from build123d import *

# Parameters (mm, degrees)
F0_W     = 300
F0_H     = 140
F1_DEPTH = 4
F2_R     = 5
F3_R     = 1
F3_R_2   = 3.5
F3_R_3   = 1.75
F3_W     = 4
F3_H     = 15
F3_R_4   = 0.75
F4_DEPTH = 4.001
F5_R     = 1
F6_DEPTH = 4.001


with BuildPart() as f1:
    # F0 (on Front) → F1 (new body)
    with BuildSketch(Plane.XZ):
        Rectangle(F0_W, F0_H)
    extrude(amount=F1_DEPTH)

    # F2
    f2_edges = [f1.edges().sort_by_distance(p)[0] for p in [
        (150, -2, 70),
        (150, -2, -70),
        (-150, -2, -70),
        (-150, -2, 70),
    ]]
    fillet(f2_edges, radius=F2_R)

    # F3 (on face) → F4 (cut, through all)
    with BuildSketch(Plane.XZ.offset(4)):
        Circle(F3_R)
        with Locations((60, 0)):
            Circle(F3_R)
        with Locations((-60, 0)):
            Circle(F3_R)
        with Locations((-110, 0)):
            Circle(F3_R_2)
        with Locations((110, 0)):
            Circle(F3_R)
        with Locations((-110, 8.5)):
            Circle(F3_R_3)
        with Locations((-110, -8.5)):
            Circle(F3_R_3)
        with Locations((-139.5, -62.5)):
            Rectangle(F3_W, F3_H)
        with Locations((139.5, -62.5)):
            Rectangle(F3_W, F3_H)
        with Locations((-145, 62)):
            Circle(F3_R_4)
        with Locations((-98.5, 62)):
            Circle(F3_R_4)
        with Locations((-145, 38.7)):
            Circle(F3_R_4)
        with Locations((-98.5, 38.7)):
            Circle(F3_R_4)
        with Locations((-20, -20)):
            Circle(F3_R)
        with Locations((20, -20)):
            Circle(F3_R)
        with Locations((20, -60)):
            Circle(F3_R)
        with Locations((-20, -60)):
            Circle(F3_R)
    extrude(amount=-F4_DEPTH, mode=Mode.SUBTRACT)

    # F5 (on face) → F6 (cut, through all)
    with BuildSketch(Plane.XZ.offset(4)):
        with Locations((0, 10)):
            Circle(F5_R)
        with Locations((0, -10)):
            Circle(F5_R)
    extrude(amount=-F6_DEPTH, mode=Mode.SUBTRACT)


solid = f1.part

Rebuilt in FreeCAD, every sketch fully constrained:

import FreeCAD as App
import Part
import Sketcher

V = App.Vector
Q = App.Units.Quantity


def edges_at(feature, points):
    """Names of the edges that pass closest to the given points."""
    edges = feature.Shape.Edges
    near = lambda p: min(range(len(edges)), key=lambda i: edges[i].distToShape(Part.Vertex(*p))[0])
    return sorted({f"Edge{near(p) + 1}" for p in points})


def add_polygon(sketch, points):
    """Adds a closed chain of lines whose ends are joined by coincident constraints."""
    first, n = sketch.GeometryCount, len(points)
    for a, b in zip(points, points[1:] + points[:1]):
        sketch.addGeometry(Part.LineSegment(App.Vector(*a, 0), App.Vector(*b, 0)), False)
    for i in range(n):
        sketch.addConstraint(Sketcher.Constraint("Coincident", first + i, 2, first + (i + 1) % n, 1))

doc = App.newDocument("Part")
params = doc.addObject("Spreadsheet::Sheet", "Params")
for row, (alias, value) in enumerate([
    ("sketch1_width", "300 mm"),
    ("sketch1_height", "140 mm"),
    ("pad1_length", "4 mm"),
    ("fillet_radius", "5 mm"),
    ("sketch2_diameter", "2 mm"),
    ("sketch2_diameter2", "7 mm"),
    ("sketch2_diameter3", "3.5 mm"),
    ("sketch2_diameter4", "1.5 mm"),
    ("sketch2_width", "4 mm"),
    ("sketch3_diameter", "2 mm"),
], start=1):
    params.set(f"A{row}", alias)
    params.set(f"B{row}", "=" + value)
    params.setAlias(f"B{row}", alias)

body = doc.addObject("PartDesign::Body", "Body")

sketch1 = body.newObject("Sketcher::SketchObject", "Sketch")
sketch1.AttachmentSupport = (doc.getObject("XZ_Plane"), [""])
sketch1.MapMode = "FlatFace"
add_polygon(sketch1, [(-150, 70), (-150, -70), (150, -70), (150, 70)])
sketch1.addConstraint([
    Sketcher.Constraint("Vertical", 0),
    Sketcher.Constraint("Horizontal", 1),
    Sketcher.Constraint("Vertical", 2),
    Sketcher.Constraint("Horizontal", 3),
    Sketcher.Constraint("Symmetric", 0, 2, 2, 2, -1, 1),
    Sketcher.Constraint("DistanceX", 1, 1, 1, 2, Q("300 mm")),
    Sketcher.Constraint("DistanceY", 0, 2, 0, 1, Q("140 mm")),
])
sketch1.setExpression("Constraints[9]", "Params.sketch1_width")
sketch1.setExpression("Constraints[10]", "Params.sketch1_height")
pad1 = body.newObject("PartDesign::Pad", "Pad")
pad1.Profile = sketch1
pad1.setExpression("Length", "Params.pad1_length")
doc.recompute()

fillet = body.newObject("PartDesign::Fillet", "Fillet")
fillet.Base = (pad1, edges_at(pad1, [
    (150, -2, 70),
    (150, -2, -70),
    (-150, -2, -70),
    (-150, -2, 70),
]))
fillet.setExpression("Radius", "Params.fillet_radius")

sketch2 = body.newObject("Sketcher::SketchObject", "Sketch001")
sketch2.AttachmentSupport = (doc.getObject("XZ_Plane"), [""])
sketch2.MapMode = "FlatFace"
sketch2.AttachmentOffset = App.Placement(V(0, 0, 4), App.Rotation())
sketch2.addGeometry(Part.Circle(V(0, 0, 0), V(0, 0, 1), 1), False)
sketch2.addGeometry(Part.Circle(V(60, 0, 0), V(0, 0, 1), 1), False)
sketch2.addGeometry(Part.Circle(V(-60, 0, 0), V(0, 0, 1), 1), False)
sketch2.addGeometry(Part.Circle(V(-110, 0, 0), V(0, 0, 1), 3.5), False)
sketch2.addGeometry(Part.Circle(V(110, 0, 0), V(0, 0, 1), 1), False)
sketch2.addGeometry(Part.Circle(V(-110, 8.5, 0), V(0, 0, 1), 1.8), False)
sketch2.addGeometry(Part.Circle(V(-110, -8.5, 0), V(0, 0, 1), 1.8), False)
add_polygon(sketch2, [(-141.5, -55), (-141.5, -70), (-137.5, -70), (-137.5, -55)])
add_polygon(sketch2, [(137.5, -55), (137.5, -70), (141.5, -70), (141.5, -55)])
sketch2.addGeometry(Part.Circle(V(-145, 62, 0), V(0, 0, 1), 0.8), False)
sketch2.addGeometry(Part.Circle(V(-98.5, 62, 0), V(0, 0, 1), 0.8), False)
sketch2.addGeometry(Part.Circle(V(-145, 38.7, 0), V(0, 0, 1), 0.8), False)
sketch2.addGeometry(Part.Circle(V(-98.5, 38.7, 0), V(0, 0, 1), 0.8), False)
sketch2.addGeometry(Part.Circle(V(-20, -20, 0), V(0, 0, 1), 1), False)
sketch2.addGeometry(Part.Circle(V(20, -20, 0), V(0, 0, 1), 1), False)
sketch2.addGeometry(Part.Circle(V(20, -60, 0), V(0, 0, 1), 1), False)
sketch2.addGeometry(Part.Circle(V(-20, -60, 0), V(0, 0, 1), 1), False)
sketch2.addConstraint([
    Sketcher.Constraint("Vertical", 7),
    Sketcher.Constraint("Horizontal", 8),
    Sketcher.Constraint("Vertical", 9),
    Sketcher.Constraint("Horizontal", 10),
    Sketcher.Constraint("Vertical", 11),
    Sketcher.Constraint("Horizontal", 12),
    Sketcher.Constraint("Vertical", 13),
    Sketcher.Constraint("Horizontal", 14),
    Sketcher.Constraint("Coincident", 0, 3, -1, 1),
    Sketcher.Constraint("Equal", 0, 1),
    Sketcher.Constraint("Equal", 1, 2),
    Sketcher.Constraint("Equal", 2, 4),
    Sketcher.Constraint("Equal", 5, 6),
    Sketcher.Constraint("Equal", 15, 16),
    Sketcher.Constraint("Equal", 16, 17),
    Sketcher.Constraint("Equal", 17, 18),
    Sketcher.Constraint("Equal", 4, 19),
    Sketcher.Constraint("Equal", 19, 20),
    Sketcher.Constraint("Equal", 20, 21),
    Sketcher.Constraint("Equal", 21, 22),
    Sketcher.Constraint("Symmetric", 1, 3, 2, 3, -1, 1),
    Sketcher.Constraint("Symmetric", 3, 3, 4, 3, -1, 1),
    Sketcher.Constraint("Symmetric", 19, 3, 20, 3, -2),
    Sketcher.Constraint("Symmetric", 21, 3, 22, 3, -2),
    Sketcher.Constraint("Symmetric", 8, 2, 11, 2, -2),
    Sketcher.Constraint("Symmetric", 10, 2, 13, 2, -2),
    Sketcher.Constraint("Symmetric", 5, 3, 6, 3, -1),
    Sketcher.Constraint("PointOnObject", 1, 3, -1),
    Sketcher.Constraint("PointOnObject", 3, 3, -1),
    Sketcher.Constraint("Horizontal", 15, 3, 16, 3),
    Sketcher.Constraint("Horizontal", 17, 3, 18, 3),
    Sketcher.Constraint("Vertical", 3, 3, 5, 3),
    Sketcher.Constraint("Vertical", 15, 3, 17, 3),
    Sketcher.Constraint("Vertical", 16, 3, 18, 3),
    Sketcher.Constraint("Vertical", 20, 3, 21, 3),
    Sketcher.Constraint("Diameter", 0, Q("2 mm")),
    Sketcher.Constraint("Diameter", 3, Q("7 mm")),
    Sketcher.Constraint("Diameter", 5, Q("3.5 mm")),
    Sketcher.Constraint("Diameter", 15, Q("1.5 mm")),
    Sketcher.Constraint("DistanceX", 8, 1, 8, 2, Q("4 mm")),
    Sketcher.Constraint("DistanceY", 7, 2, 7, 1, Q("15 mm")),
    Sketcher.Constraint("DistanceX", -1, 1, 1, 3, Q("60 mm")),
    Sketcher.Constraint("DistanceX", 3, 3, -1, 1, Q("110 mm")),
    Sketcher.Constraint("DistanceX", 15, 3, -1, 1, Q("145 mm")),
    Sketcher.Constraint("DistanceY", -1, 1, 15, 3, Q("62 mm")),
    Sketcher.Constraint("DistanceX", 19, 3, -1, 1, Q("20 mm")),
    Sketcher.Constraint("DistanceY", 19, 3, -1, 1, Q("20 mm")),
    Sketcher.Constraint("DistanceY", 21, 3, -1, 1, Q("60 mm")),
    Sketcher.Constraint("DistanceY", 7, 2, -1, 1, Q("70 mm")),
    Sketcher.Constraint("DistanceY", 6, 3, 5, 3, Q("17 mm")),
    Sketcher.Constraint("DistanceX", 16, 3, -1, 1, Q("98.5 mm")),
    Sketcher.Constraint("DistanceY", -1, 1, 17, 3, Q("38.7 mm")),
    Sketcher.Constraint("DistanceX", 7, 2, -1, 1, Q("141.5 mm")),
])
sketch2.setExpression("Constraints[43]", "Params.sketch2_diameter")
sketch2.setExpression("Constraints[44]", "Params.sketch2_diameter2")
sketch2.setExpression("Constraints[45]", "Params.sketch2_diameter3")
sketch2.setExpression("Constraints[46]", "Params.sketch2_diameter4")
sketch2.setExpression("Constraints[47]", "Params.sketch2_width")
pocket1 = body.newObject("PartDesign::Pocket", "Pocket")
pocket1.Profile = sketch2
pocket1.Type = "ThroughAll"

sketch3 = body.newObject("Sketcher::SketchObject", "Sketch002")
sketch3.AttachmentSupport = (doc.getObject("XZ_Plane"), [""])
sketch3.MapMode = "FlatFace"
sketch3.AttachmentOffset = App.Placement(V(0, 0, 4), App.Rotation())
sketch3.addGeometry([
    Part.Circle(V(0, 10, 0), V(0, 0, 1), 1),
    Part.Circle(V(0, -10, 0), V(0, 0, 1), 1),
], False)
sketch3.addConstraint([
    Sketcher.Constraint("Equal", 0, 1),
    Sketcher.Constraint("Symmetric", 0, 3, 1, 3, -1, 1),
    Sketcher.Constraint("PointOnObject", 0, 3, -2),
    Sketcher.Constraint("Diameter", 0, Q("2 mm")),
    Sketcher.Constraint("DistanceY", -1, 1, 0, 3, Q("10 mm")),
])
sketch3.setExpression("Constraints[3]", "Params.sketch3_diameter")
pocket2 = body.newObject("PartDesign::Pocket", "Pocket001")
pocket2.Profile = sketch3
pocket2.Type = "ThroughAll"

doc.recompute()
